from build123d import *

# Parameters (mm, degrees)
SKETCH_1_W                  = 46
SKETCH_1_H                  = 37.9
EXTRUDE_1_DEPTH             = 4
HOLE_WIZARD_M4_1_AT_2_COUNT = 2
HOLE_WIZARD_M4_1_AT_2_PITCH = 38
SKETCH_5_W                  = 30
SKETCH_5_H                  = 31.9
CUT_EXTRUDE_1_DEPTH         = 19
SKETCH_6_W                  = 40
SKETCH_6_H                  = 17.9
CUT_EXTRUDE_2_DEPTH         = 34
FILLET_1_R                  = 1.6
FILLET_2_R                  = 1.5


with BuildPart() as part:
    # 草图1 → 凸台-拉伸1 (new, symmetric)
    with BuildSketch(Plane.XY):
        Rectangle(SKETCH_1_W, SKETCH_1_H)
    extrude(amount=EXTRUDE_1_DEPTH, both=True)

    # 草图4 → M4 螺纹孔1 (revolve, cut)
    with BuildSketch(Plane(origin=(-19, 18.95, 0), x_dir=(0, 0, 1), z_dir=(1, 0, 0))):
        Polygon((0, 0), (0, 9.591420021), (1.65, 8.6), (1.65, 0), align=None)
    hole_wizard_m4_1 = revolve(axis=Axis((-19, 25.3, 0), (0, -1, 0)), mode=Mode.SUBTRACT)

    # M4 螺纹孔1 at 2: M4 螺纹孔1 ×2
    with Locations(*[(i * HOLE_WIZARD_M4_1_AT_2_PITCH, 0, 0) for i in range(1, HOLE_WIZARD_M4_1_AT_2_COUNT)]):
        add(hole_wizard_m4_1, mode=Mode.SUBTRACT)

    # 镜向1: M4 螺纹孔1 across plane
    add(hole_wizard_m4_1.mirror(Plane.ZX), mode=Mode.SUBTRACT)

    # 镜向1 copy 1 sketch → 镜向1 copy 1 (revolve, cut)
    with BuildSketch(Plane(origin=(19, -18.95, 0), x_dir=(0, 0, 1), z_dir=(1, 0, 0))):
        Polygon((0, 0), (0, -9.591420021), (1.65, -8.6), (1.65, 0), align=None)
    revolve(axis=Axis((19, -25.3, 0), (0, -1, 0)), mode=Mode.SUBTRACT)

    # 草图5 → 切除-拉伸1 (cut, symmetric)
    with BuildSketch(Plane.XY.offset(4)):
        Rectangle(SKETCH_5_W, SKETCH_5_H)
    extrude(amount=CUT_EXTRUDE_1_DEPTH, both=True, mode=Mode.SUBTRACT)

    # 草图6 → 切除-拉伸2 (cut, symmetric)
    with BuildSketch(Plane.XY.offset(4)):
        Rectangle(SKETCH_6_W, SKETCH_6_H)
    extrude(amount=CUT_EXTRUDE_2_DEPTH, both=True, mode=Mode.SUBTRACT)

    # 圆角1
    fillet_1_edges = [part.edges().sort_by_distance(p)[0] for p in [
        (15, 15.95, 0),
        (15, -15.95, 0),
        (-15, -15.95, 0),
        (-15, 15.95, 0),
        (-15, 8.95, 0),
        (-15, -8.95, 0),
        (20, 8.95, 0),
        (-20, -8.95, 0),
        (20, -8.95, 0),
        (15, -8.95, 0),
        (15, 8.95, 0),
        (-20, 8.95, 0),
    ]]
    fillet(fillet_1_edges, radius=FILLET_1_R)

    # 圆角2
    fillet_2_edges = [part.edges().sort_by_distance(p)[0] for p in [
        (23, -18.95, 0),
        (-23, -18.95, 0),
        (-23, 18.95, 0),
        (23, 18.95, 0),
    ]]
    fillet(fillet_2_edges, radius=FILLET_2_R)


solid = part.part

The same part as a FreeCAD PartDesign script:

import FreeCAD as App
import Part
import Sketcher

V = App.Vector
Q = App.Units.Quantity


def edges_at(feature, points):
    """Names of the edges that pass closest to the given points."""
    edges = feature.Shape.Edges
    near = lambda p: min(range(len(edges)), key=lambda i: edges[i].distToShape(Part.Vertex(*p))[0])
    return sorted({f"Edge{near(p) + 1}" for p in points})

doc = App.newDocument("Part")
body = doc.addObject("PartDesign::Body", "Body")

# Sketch on XY plane
sketch1 = body.newObject("Sketcher::SketchObject", "Sketch")
sketch1.AttachmentSupport = (doc.getObject("XY_Plane"), [""])
sketch1.MapMode = "FlatFace"
sketch1.addGeometry([
    Part.LineSegment(V(-23, 19, 0), V(-23, -19, 0)),
    Part.LineSegment(V(-23, -19, 0), V(23, -19, 0)),
    Part.LineSegment(V(23, -19, 0), V(23, 19, 0)),
    Part.LineSegment(V(23, 19, 0), V(-23, 19, 0)),
], False)
sketch1.addConstraint([
    Sketcher.Constraint("Coincident", 0, 2, 1, 1),
    Sketcher.Constraint("Coincident", 1, 2, 2, 1),
    Sketcher.Constraint("Coincident", 2, 2, 3, 1),
    Sketcher.Constraint("Coincident", 3, 2, 0, 1),
    Sketcher.Constraint("Vertical", 0),
    Sketcher.Constraint("Horizontal", 1),
    Sketcher.Constraint("Vertical", 2),
    Sketcher.Constraint("Horizontal", 3),
    Sketcher.Constraint("Symmetric", 0, 2, 2, 2, -1, 1),
    Sketcher.Constraint("DistanceX", 1, 1, 1, 2, 46.0),
    Sketcher.Constraint("DistanceY", 0, 2, 0, 1, 37.9),
])
pad1 = body.newObject("PartDesign::Pad", "Pad")
pad1.Profile = sketch1
pad1.Length = 8
pad1.Midplane = True

# Sketch on YZ plane
sketch2 = body.newObject("Sketcher::SketchObject", "Sketch001")
sketch2.AttachmentSupport = (doc.getObject("YZ_Plane"), [""])
sketch2.MapMode = "FlatFace"
sketch2.AttachmentOffset = App.Placement(V(0, 0, -19), App.Rotation())
sketch2.addGeometry([
    Part.LineSegment(V(9.4, 0, 0), V(18.9, 0, 0)),
    Part.LineSegment(V(18.9, 0, 0), V(18.9, 1.6, 0)),
    Part.LineSegment(V(18.9, 1.6, 0), V(10.3, 1.6, 0)),
    Part.LineSegment(V(10.3, 1.6, 0), V(9.4, 0, 0)),
], False)
sketch2.addConstraint([
    Sketcher.Constraint("Coincident", 0, 2, 1, 1),
    Sketcher.Constraint("Coincident", 1, 2, 2, 1),
    Sketcher.Constraint("Coincident", 2, 2, 3, 1),
    Sketcher.Constraint("Coincident", 3, 2, 0, 1),
    Sketcher.Constraint("Horizontal", 0),
    Sketcher.Constraint("Vertical", 1),
    Sketcher.Constraint("Horizontal", 2),
    Sketcher.Constraint("PointOnObject", 0, 2, -1),
    Sketcher.Constraint("Angle", 3, Q("-121 deg")),
    Sketcher.Constraint("DistanceX", 2, 2, 2, 1, 8.6),
    Sketcher.Constraint("DistanceY", 1, 1, 1, 2, 1.65),
    Sketcher.Constraint("DistanceX", -1, 1, 0, 2, 18.95),
])
groove = body.newObject("PartDesign::Groove", "Groove")
groove.Profile = sketch2
groove.ReferenceAxis = (sketch2, ["H_Axis"])
groove.Angle = 360
doc.recompute()

linearpattern = body.newObject("PartDesign::LinearPattern", "LinearPattern")
linearpattern.Originals = [groove]
linearpattern.Direction = (doc.getObject("X_Axis"), [""])
linearpattern.Mode = "offset"
linearpattern.Offset = 38
linearpattern.Occurrences = 2
body.Tip = linearpattern
doc.recompute()

mirrored = body.newObject("PartDesign::Mirrored", "Mirrored")
mirrored.Originals = [groove]
mirrored.MirrorPlane = (doc.getObject("XZ_Plane"), [""])
body.Tip = mirrored

# Sketch on YZ plane
sketch3 = body.newObject("Sketcher::SketchObject", "Sketch002")
sketch3.AttachmentSupport = (doc.getObject("YZ_Plane"), [""])
sketch3.MapMode = "FlatFace"
sketch3.AttachmentOffset = App.Placement(V(0, 0, 19), App.Rotation())
sketch3.addGeometry([
    Part.LineSegment(V(-18.9, 0, 0), V(-9.4, 0, 0)),
    Part.LineSegment(V(-9.4, 0, 0), V(-10.3, 1.6, 0)),
    Part.LineSegment(V(-10.3, 1.6, 0), V(-18.9, 1.6, 0)),
    Part.LineSegment(V(-18.9, 1.6, 0), V(-18.9, 0, 0)),
], False)
sketch3.addConstraint([
    Sketcher.Constraint("Coincident", 0, 2, 1, 1),
    Sketcher.Constraint("Coincident", 1, 2, 2, 1),
    Sketcher.Constraint("Coincident", 2, 2, 3, 1),
    Sketcher.Constraint("Coincident", 3, 2, 0, 1),
    Sketcher.Constraint("Horizontal", 0),
    Sketcher.Constraint("Horizontal", 2),
    Sketcher.Constraint("Vertical", 3),
    Sketcher.Constraint("PointOnObject", 0, 2, -1),
    Sketcher.Constraint("Angle", 1, Q("121 deg")),
    Sketcher.Constraint("DistanceX", 2, 2, 2, 1, 8.6),
    Sketcher.Constraint("DistanceY", 3, 2, 3, 1, 1.65),
    Sketcher.Constraint("DistanceX", 1, 2, -1, 1, 10.35),
])
groove2 = body.newObject("PartDesign::Groove", "Groove001")
groove2.Profile = sketch3
groove2.ReferenceAxis = (sketch3, ["H_Axis"])
groove2.Angle = 360

# Sketch on XY plane
sketch4 = body.newObject("Sketcher::SketchObject", "Sketch003")
sketch4.AttachmentSupport = (doc.getObject("XY_Plane"), [""])
sketch4.MapMode = "FlatFace"
sketch4.AttachmentOffset = App.Placement(V(0, 0, 4), App.Rotation())
sketch4.addGeometry([
    Part.LineSegment(V(-15, 16, 0), V(-15, -16, 0)),
    Part.LineSegment(V(-15, -16, 0), V(15, -16, 0)),
    Part.LineSegment(V(15, -16, 0), V(15, 16, 0)),
    Part.LineSegment(V(15, 16, 0), V(-15, 16, 0)),
], False)
sketch4.addConstraint([
    Sketcher.Constraint("Coincident", 0, 2, 1, 1),
    Sketcher.Constraint("Coincident", 1, 2, 2, 1),
    Sketcher.Constraint("Coincident", 2, 2, 3, 1),
    Sketcher.Constraint("Coincident", 3, 2, 0, 1),
    Sketcher.Constraint("Vertical", 0),
    Sketcher.Constraint("Horizontal", 1),
    Sketcher.Constraint("Vertical", 2),
    Sketcher.Constraint("Horizontal", 3),
    Sketcher.Constraint("Symmetric", 0, 2, 2, 2, -1, 1),
    Sketcher.Constraint("DistanceX", 1, 1, 1, 2, 30.0),
    Sketcher.Constraint("DistanceY", 0, 2, 0, 1, 31.9),
])
pocket1 = body.newObject("PartDesign::Pocket", "Pocket")
pocket1.Profile = sketch4
pocket1.Length = 38
pocket1.Midplane = True

# Sketch on XY plane
sketch5 = body.newObject("Sketcher::SketchObject", "Sketch004")
sketch5.AttachmentSupport = (doc.getObject("XY_Plane"), [""])
sketch5.MapMode = "FlatFace"
sketch5.AttachmentOffset = App.Placement(V(0, 0, 4), App.Rotation())
sketch5.addGeometry([
    Part.LineSegment(V(-20, 9, 0), V(-20, -9, 0)),
    Part.LineSegment(V(-20, -9, 0), V(20, -9, 0)),
    Part.LineSegment(V(20, -9, 0), V(20, 9, 0)),
    Part.LineSegment(V(20, 9, 0), V(-20, 9, 0)),
], False)
sketch5.addConstraint([
    Sketcher.Constraint("Coincident", 0, 2, 1, 1),
    Sketcher.Constraint("Coincident", 1, 2, 2, 1),
    Sketcher.Constraint("Coincident", 2, 2, 3, 1),
    Sketcher.Constraint("Coincident", 3, 2, 0, 1),
    Sketcher.Constraint("Vertical", 0),
    Sketcher.Constraint("Horizontal", 1),
    Sketcher.Constraint("Vertical", 2),
    Sketcher.Constraint("Horizontal", 3),
    Sketcher.Constraint("Symmetric", 0, 2, 2, 2, -1, 1),
    Sketcher.Constraint("DistanceX", 1, 1, 1, 2, 40.0),
    Sketcher.Constraint("DistanceY", 0, 2, 0, 1, 17.9),
])
pocket2 = body.newObject("PartDesign::Pocket", "Pocket001")
pocket2.Profile = sketch5
pocket2.Length = 68
pocket2.Midplane = True
doc.recompute()

fillet = body.newObject("PartDesign::Fillet", "Fillet")
fillet.Base = (pocket2, edges_at(pocket2, [
    (15, 15.95, 0),
    (15, -15.95, 0),
    (-15, -15.95, 0),
    (-15, 15.95, 0),
    (-15, 8.95, 0),
    (-15, -8.95, 0),
    (20, 8.95, 0),
    (-20, -8.95, 0),
    (20, -8.95, 0),
    (15, -8.95, 0),
    (15, 8.95, 0),
    (-20, 8.95, 0),
]))
fillet.Radius = 1.6
doc.recompute()

fillet2 = body.newObject("PartDesign::Fillet", "Fillet001")
fillet2.Base = (fillet, edges_at(fillet, [
    (23, -18.95, 0),
    (-23, -18.95, 0),
    (-23, 18.95, 0),
    (23, 18.95, 0),
]))
fillet2.Radius = 1.5

doc.recompute()
